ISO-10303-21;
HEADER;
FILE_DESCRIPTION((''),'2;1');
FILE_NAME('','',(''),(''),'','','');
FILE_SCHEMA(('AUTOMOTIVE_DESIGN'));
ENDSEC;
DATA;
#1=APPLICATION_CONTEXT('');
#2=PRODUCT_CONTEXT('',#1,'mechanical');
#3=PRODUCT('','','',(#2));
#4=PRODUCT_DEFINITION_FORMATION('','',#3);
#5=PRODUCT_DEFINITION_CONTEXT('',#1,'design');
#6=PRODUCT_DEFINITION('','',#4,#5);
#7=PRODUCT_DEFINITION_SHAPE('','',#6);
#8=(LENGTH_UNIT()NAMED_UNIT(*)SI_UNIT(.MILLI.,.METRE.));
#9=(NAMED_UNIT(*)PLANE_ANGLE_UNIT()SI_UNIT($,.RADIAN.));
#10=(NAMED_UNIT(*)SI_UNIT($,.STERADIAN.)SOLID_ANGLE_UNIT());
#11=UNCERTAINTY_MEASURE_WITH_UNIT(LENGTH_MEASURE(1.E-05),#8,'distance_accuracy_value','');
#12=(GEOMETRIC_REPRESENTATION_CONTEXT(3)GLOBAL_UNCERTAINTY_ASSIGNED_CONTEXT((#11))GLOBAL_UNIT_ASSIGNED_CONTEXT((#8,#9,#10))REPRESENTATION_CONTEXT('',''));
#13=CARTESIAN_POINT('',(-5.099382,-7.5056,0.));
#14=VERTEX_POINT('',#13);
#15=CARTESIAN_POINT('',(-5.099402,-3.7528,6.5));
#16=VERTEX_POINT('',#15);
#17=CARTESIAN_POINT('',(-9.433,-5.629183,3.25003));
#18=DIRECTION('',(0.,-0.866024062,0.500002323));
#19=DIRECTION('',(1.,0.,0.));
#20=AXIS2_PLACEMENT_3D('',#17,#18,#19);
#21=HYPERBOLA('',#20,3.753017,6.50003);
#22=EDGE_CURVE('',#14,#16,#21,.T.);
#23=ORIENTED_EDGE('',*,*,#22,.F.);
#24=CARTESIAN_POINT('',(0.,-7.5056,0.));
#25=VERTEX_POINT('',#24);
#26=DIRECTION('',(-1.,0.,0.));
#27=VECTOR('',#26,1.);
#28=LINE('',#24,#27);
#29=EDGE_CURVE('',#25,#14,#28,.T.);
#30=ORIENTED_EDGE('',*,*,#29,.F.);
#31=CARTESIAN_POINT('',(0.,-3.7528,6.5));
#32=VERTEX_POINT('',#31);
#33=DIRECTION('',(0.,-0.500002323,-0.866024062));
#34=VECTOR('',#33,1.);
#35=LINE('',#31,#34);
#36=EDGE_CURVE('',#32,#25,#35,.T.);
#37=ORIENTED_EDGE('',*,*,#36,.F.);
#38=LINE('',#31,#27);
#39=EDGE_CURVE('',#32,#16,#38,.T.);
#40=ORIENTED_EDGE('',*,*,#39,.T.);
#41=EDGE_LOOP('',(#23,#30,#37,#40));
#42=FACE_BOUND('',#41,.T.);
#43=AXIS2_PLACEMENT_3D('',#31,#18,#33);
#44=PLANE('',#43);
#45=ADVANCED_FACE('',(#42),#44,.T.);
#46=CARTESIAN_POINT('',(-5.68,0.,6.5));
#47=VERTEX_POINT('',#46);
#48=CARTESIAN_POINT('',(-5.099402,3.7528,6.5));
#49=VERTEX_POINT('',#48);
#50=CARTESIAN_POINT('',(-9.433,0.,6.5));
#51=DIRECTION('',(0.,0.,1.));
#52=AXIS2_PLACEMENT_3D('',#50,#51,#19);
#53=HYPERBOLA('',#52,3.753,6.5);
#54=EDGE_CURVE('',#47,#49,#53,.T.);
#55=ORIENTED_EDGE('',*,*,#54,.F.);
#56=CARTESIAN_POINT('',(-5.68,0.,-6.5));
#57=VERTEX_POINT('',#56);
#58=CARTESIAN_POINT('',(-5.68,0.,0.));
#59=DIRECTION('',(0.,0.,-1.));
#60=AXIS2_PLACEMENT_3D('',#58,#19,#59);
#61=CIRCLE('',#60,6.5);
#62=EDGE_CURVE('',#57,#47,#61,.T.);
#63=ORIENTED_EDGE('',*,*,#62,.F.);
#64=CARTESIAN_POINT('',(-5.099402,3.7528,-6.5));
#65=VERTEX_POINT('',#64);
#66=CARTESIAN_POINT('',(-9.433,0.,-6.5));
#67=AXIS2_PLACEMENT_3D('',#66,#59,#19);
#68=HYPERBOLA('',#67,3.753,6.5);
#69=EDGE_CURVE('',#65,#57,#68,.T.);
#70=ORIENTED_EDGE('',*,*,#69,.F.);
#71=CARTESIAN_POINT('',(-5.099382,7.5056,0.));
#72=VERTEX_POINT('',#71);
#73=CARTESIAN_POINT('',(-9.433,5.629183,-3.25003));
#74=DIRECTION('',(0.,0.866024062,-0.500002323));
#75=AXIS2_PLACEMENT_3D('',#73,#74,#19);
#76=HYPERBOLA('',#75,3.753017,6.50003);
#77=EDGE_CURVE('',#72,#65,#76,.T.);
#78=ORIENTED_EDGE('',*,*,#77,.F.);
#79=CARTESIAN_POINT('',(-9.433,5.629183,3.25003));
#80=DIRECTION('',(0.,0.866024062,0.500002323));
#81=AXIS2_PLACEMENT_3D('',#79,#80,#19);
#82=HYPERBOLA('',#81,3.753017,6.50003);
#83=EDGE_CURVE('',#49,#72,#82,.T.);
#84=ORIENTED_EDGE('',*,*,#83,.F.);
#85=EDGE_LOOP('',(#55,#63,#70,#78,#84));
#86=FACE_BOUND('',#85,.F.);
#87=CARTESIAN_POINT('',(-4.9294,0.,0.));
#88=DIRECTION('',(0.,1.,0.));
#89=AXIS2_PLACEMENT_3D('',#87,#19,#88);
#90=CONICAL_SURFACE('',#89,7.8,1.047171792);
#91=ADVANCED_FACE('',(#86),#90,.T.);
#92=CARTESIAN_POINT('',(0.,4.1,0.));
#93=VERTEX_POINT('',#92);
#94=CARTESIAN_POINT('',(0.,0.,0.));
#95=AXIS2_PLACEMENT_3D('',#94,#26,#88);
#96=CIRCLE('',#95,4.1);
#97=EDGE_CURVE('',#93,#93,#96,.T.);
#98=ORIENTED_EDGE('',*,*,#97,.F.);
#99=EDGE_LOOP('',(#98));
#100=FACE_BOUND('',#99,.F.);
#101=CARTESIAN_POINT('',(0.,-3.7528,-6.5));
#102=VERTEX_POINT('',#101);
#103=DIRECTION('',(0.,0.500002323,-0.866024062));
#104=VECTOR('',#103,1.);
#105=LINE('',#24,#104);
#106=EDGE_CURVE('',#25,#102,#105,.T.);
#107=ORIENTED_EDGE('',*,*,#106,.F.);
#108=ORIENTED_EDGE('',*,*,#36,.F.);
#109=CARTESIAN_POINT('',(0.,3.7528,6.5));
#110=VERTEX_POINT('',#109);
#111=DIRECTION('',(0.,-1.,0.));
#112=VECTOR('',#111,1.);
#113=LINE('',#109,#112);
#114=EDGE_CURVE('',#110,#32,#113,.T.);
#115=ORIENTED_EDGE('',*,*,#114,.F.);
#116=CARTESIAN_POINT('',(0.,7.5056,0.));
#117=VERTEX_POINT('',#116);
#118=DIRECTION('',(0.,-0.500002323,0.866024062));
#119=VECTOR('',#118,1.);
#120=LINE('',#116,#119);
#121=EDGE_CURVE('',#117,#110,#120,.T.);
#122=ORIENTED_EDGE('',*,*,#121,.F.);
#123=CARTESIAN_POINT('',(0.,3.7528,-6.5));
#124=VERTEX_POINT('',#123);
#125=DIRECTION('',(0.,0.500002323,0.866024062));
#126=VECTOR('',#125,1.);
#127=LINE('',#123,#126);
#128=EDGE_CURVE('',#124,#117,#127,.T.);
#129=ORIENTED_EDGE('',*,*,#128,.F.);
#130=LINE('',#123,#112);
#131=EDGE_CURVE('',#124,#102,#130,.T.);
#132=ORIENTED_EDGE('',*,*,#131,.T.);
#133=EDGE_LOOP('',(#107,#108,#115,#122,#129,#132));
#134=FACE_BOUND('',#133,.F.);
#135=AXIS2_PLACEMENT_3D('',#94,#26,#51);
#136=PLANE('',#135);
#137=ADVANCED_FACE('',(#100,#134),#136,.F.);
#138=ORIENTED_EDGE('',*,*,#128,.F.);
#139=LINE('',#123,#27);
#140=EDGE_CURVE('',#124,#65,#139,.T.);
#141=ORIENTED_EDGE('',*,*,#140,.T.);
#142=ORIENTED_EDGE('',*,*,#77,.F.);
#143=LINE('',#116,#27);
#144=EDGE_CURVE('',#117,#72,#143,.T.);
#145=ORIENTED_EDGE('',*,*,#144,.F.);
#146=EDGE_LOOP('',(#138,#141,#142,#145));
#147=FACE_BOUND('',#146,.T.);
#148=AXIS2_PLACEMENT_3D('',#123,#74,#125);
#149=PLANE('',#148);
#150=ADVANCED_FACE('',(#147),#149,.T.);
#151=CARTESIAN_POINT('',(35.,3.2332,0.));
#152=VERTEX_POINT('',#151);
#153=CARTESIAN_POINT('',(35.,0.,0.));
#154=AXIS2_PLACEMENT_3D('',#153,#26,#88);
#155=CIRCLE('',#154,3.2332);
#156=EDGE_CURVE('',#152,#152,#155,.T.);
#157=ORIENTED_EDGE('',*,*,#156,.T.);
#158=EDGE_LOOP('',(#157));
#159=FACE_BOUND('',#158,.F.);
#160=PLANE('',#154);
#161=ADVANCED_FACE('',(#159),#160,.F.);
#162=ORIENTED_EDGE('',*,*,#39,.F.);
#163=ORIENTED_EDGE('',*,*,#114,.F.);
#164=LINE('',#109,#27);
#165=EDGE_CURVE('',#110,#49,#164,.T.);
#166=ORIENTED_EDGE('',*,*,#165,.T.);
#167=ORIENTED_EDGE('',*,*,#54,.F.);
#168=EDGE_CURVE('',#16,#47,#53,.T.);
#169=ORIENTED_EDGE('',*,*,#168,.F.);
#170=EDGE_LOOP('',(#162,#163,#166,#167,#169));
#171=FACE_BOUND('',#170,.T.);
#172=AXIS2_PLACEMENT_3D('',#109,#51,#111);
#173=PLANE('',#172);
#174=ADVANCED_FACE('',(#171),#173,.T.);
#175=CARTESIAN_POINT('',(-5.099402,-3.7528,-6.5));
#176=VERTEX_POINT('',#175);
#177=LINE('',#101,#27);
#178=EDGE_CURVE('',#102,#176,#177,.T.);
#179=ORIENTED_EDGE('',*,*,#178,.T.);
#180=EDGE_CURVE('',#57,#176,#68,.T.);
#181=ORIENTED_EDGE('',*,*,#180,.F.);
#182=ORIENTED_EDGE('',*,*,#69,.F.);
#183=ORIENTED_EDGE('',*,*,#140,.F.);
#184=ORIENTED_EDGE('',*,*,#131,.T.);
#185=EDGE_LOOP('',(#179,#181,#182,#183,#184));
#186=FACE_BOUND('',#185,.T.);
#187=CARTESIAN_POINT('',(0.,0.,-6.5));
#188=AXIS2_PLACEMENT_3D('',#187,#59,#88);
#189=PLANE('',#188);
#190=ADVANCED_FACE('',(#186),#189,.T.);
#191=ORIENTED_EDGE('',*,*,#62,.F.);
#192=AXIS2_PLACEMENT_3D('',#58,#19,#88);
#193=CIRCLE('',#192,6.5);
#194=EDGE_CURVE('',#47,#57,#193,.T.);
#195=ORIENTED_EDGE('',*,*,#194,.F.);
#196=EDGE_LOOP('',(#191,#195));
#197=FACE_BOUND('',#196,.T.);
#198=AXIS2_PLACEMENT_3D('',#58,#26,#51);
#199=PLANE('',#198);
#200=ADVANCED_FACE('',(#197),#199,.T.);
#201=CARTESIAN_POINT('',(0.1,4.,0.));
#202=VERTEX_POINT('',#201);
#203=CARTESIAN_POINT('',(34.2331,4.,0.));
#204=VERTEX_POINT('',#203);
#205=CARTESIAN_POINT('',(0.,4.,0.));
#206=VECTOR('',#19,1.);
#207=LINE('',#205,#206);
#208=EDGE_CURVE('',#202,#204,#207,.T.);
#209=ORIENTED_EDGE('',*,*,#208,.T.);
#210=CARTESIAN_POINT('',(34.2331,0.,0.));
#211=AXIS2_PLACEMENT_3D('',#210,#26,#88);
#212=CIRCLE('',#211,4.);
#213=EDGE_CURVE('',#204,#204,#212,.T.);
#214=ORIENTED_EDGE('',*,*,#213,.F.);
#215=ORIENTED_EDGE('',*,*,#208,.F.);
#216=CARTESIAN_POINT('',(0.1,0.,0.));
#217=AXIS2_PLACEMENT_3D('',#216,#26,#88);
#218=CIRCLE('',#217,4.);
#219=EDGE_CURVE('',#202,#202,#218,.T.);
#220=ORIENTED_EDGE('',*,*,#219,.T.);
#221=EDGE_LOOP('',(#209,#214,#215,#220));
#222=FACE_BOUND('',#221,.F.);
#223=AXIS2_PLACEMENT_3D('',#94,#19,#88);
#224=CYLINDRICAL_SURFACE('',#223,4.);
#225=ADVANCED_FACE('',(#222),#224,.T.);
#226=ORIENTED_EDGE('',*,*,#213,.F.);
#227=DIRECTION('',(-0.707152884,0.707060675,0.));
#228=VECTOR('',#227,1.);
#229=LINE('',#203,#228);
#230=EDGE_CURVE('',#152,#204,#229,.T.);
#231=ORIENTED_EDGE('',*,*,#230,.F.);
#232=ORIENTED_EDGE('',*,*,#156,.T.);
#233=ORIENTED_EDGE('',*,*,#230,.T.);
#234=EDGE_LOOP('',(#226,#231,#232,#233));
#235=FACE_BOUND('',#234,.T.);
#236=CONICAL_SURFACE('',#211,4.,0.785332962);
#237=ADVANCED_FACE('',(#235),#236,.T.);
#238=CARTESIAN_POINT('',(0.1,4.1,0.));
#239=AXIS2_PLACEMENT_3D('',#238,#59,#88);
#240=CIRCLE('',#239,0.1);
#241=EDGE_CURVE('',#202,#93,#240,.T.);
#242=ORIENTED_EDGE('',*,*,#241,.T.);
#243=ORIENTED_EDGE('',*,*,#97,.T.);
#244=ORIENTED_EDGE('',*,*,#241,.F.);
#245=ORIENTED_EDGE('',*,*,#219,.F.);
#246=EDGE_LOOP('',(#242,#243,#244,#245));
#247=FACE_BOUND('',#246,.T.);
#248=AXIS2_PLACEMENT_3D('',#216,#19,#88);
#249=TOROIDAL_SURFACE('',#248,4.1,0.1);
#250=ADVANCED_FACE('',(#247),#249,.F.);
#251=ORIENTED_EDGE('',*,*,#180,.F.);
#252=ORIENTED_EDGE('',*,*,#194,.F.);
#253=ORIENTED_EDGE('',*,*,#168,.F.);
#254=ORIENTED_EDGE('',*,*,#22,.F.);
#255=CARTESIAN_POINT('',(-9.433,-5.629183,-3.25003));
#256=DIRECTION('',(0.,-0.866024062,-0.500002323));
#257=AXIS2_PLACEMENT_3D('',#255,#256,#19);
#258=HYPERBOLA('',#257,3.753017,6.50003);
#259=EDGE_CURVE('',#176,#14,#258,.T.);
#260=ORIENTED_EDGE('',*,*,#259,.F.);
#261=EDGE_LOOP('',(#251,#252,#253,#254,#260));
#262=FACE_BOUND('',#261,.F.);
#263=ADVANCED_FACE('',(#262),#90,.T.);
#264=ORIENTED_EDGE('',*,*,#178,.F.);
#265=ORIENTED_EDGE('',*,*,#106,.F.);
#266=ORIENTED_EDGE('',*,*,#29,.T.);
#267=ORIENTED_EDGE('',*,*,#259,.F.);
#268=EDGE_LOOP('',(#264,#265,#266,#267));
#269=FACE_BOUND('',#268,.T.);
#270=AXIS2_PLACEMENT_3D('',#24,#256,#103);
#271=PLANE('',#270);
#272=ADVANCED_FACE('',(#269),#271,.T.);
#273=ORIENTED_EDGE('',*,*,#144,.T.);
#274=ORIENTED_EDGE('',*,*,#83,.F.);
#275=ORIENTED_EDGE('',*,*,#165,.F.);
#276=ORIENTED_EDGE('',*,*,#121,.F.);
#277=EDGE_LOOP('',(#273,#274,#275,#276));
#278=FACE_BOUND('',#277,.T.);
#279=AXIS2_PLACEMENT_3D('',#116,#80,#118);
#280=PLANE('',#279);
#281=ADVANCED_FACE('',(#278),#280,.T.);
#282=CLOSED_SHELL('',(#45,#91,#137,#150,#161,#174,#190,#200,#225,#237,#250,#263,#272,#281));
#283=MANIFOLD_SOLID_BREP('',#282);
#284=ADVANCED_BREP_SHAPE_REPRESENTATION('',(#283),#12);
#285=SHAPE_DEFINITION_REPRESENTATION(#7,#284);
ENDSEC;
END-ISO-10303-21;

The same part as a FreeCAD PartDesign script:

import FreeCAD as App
import Part
import Sketcher
Q = App.Units.Quantity


def edges_at(feature, points):
    """Names of the edges that pass closest to the given points."""
    edges = feature.Shape.Edges
    near = lambda p: min(range(len(edges)), key=lambda i: edges[i].distToShape(Part.Vertex(*p))[0])
    return sorted({f"Edge{near(p) + 1}" for p in points})


def add_polygon(sketch, points):
    """Adds a closed chain of lines whose ends are joined by coincident constraints."""
    first, n = sketch.GeometryCount, len(points)
    for a, b in zip(points, points[1:] + points[:1]):
        sketch.addGeometry(Part.LineSegment(App.Vector(*a, 0), App.Vector(*b, 0)), False)
    for i in range(n):
        sketch.addConstraint(Sketcher.Constraint("Coincident", first + i, 2, first + (i + 1) % n, 1))

doc = App.newDocument("Part")
body = doc.addObject("PartDesign::Body", "Body")

# Sketch on XY plane
sketch1 = doc.addObject("Sketcher::SketchObject", "Sketch")
body.addObject(sketch1)
sketch1.AttachmentSupport = (doc.XY_Plane, [""])
sketch1.MapMode = "FlatFace"
add_polygon(sketch1, [(35, 4), (0, 4), (0, 0), (35, 0)])  # lines 0-3
sketch1.addConstraint(Sketcher.Constraint("Horizontal", 0))
sketch1.addConstraint(Sketcher.Constraint("Vertical", 1))
sketch1.addConstraint(Sketcher.Constraint("Horizontal", 2))
sketch1.addConstraint(Sketcher.Constraint("Vertical", 3))
sketch1.addConstraint(Sketcher.Constraint("Coincident", 1, 2, -1, 1))
sketch1.addConstraint(Sketcher.Constraint("DistanceX", 0, 2, 0, 1, 35.0))
sketch1.addConstraint(Sketcher.Constraint("DistanceY", 1, 2, 1, 1, 4.0))
revolution = doc.addObject("PartDesign::Revolution", "Revolution")
body.addObject(revolution)
revolution.Profile = sketch1
revolution.ReferenceAxis = (sketch1, ["H_Axis"])
revolution.Angle = 360

# Sketch on YZ plane
sketch2 = doc.addObject("Sketcher::SketchObject", "Sketch001")
body.addObject(sketch2)
sketch2.AttachmentSupport = (doc.YZ_Plane, [""])
sketch2.MapMode = "FlatFace"
add_polygon(sketch2, [(4, -6), (-4, -6), (-8, 0), (-4, 6), (4, 6), (8, 0)])  # lines 0-5
sketch2.addConstraint(Sketcher.Constraint("Horizontal", 0))
sketch2.addConstraint(Sketcher.Constraint("Horizontal", 3))
sketch2.addConstraint(Sketcher.Constraint("Symmetric", 0, 2, 3, 2, -1, 1))
sketch2.addConstraint(Sketcher.Constraint("Symmetric", 1, 2, 4, 2, -1, 1))
sketch2.addConstraint(Sketcher.Constraint("PointOnObject", 1, 2, -1))
sketch2.addConstraint(Sketcher.Constraint("Parallel", 2, 5))
sketch2.addConstraint(Sketcher.Constraint("Vertical", 0, 2, 2, 2))
sketch2.addConstraint(Sketcher.Constraint("DistanceY", 0, 2, 2, 2, 13.0))
sketch2.addConstraint(Sketcher.Constraint("Angle", 1, Q("120.0002 deg")))
sketch2.addConstraint(Sketcher.Constraint("DistanceX", 0, 2, 0, 1, 7.5056))
pad1 = doc.addObject("PartDesign::Pad", "Pad")
body.addObject(pad1)
pad1.Profile = sketch2
pad1.Length = 5.68
pad1.Reversed = True

# Sketch on XY plane
sketch3 = doc.addObject("Sketcher::SketchObject", "Sketch002")
body.addObject(sketch3)
sketch3.AttachmentSupport = (doc.XY_Plane, [""])
sketch3.MapMode = "FlatFace"
add_polygon(sketch3, [(-5.7, 6.5), (-4.9, 7.8), (-5.7, 7.8)])  # lines 0-2
sketch3.addConstraint(Sketcher.Constraint("Horizontal", 1))
sketch3.addConstraint(Sketcher.Constraint("Vertical", 2))
sketch3.addConstraint(Sketcher.Constraint("DistanceX", 1, 2, -1, 1, 5.68))
sketch3.addConstraint(Sketcher.Constraint("DistanceY", 2, 2, 2, 1, 1.3))
sketch3.addConstraint(Sketcher.Constraint("DistanceY", -1, 1, 0, 2, 7.8))
sketch3.addConstraint(Sketcher.Constraint("DistanceX", 1, 2, 1, 1, 0.7506))
groove = doc.addObject("PartDesign::Groove", "Groove")
body.addObject(groove)
groove.Profile = sketch3
groove.ReferenceAxis = (sketch3, ["H_Axis"])
groove.Angle = 360
doc.recompute()

chamfer = doc.addObject("PartDesign::Chamfer", "Chamfer")
body.addObject(chamfer)
chamfer.Base = (groove, edges_at(groove, [(35, -4, 0)]))
chamfer.ChamferType = "Two distances"
chamfer.Size = 0.7668
chamfer.Size2 = 0.7669
doc.recompute()

fillet = doc.addObject("PartDesign::Fillet", "Fillet")
body.addObject(fillet)
fillet.Base = (chamfer, edges_at(chamfer, [(0, -4, 0)]))
fillet.Radius = 0.1

doc.recompute()
